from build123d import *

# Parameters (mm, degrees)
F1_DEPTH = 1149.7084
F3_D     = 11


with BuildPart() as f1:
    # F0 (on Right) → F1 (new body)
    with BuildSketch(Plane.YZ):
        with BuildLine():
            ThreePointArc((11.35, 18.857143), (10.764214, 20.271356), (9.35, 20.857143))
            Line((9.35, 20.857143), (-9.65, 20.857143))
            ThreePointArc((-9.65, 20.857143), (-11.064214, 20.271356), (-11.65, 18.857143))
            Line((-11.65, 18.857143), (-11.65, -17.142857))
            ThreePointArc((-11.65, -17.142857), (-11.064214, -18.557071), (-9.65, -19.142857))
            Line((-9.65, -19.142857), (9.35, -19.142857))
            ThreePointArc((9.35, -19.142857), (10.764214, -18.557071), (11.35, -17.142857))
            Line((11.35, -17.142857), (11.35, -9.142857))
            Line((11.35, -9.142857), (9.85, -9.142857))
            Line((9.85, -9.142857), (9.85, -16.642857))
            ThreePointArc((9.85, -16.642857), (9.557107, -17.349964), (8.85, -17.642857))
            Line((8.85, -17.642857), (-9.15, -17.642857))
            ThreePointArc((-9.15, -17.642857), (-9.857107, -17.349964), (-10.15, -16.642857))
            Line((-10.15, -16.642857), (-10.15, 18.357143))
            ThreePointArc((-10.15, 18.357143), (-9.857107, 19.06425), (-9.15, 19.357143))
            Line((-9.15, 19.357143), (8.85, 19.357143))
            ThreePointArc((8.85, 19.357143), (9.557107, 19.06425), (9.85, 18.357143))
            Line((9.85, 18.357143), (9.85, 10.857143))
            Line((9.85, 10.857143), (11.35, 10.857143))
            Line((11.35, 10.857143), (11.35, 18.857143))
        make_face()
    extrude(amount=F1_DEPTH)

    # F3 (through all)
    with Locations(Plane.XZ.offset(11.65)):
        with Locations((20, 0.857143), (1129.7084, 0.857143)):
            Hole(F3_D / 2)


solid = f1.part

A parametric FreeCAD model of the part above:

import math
import FreeCAD as App
import Part
import Sketcher
from FreeCAD import Vector

doc = App.newDocument("Part")
params = doc.addObject("Spreadsheet::Sheet", "Params")
for row, (alias, value) in enumerate([
    ("sketch1_radius", "2 mm"),
    ("sketch1_radius2", "0.999999 mm"),
    ("sketch1_width", "19 mm"),
    ("sketch1_width2", "18 mm"),
    ("sketch1_height", "36 mm"),
    ("pad1_length", "1149.7084 mm"),
    ("sketch2_diameter", "11 mm"),
    ("hole_diameter", "11 mm"),
], start=1):
    params.set(f"A{row}", alias)
    params.set(f"B{row}", "=" + value)
    params.setAlias(f"B{row}", alias)

body = doc.addObject("PartDesign::Body", "Body")

# Sketch on YZ plane
sketch1 = body.newObject("Sketcher::SketchObject", "Sketch")
sketch1.AttachmentSupport = (doc.getObject("YZ_Plane"), [""])
sketch1.MapMode = "FlatFace"
sketch1.addGeometry([
    Part.ArcOfCircle(Part.Circle(Vector(9.3, 18.9, 0), Vector(0, 0, 1), 2), math.radians(0), math.radians(90)),  # 0
    Part.LineSegment(Vector(9.3, 20.9, 0), Vector(-9.7, 20.9, 0)),  # 1
    Part.ArcOfCircle(Part.Circle(Vector(-9.6, 18.9, 0), Vector(0, 0, 1), 2), math.radians(90), math.radians(180)),  # 2
    Part.LineSegment(Vector(-11.7, 18.9, 0), Vector(-11.7, -17.1, 0)),  # 3
    Part.ArcOfCircle(Part.Circle(Vector(-9.7, -17.1, 0), Vector(0, 0, 1), 2), math.radians(180), math.radians(270)),  # 4
    Part.LineSegment(Vector(-9.7, -19.1, 0), Vector(9.3, -19.1, 0)),  # 5
    Part.ArcOfCircle(Part.Circle(Vector(9.4, -17.1, 0), Vector(0, 0, 1), 2), math.radians(-90), math.radians(0)),  # 6
    Part.LineSegment(Vector(11.3, -17.1, 0), Vector(11.3, -9.1, 0)),  # 7
    Part.LineSegment(Vector(11.3, -9.1, 0), Vector(9.8, -9.1, 0)),  # 8
    Part.LineSegment(Vector(9.8, -9.1, 0), Vector(9.8, -16.6, 0)),  # 9
    Part.ArcOfCircle(Part.Circle(Vector(8.9, -16.6, 0), Vector(0, 0, 1), 1), math.radians(-90), math.radians(0)),  # 10
    Part.LineSegment(Vector(8.8, -17.6, 0), Vector(-9.2, -17.6, 0)),  # 11
    Part.ArcOfCircle(Part.Circle(Vector(-9.2, -16.6, 0), Vector(0, 0, 1), 1), math.radians(180), math.radians(270)),  # 12
    Part.LineSegment(Vector(-10.2, -16.6, 0), Vector(-10.2, 18.4, 0)),  # 13
    Part.ArcOfCircle(Part.Circle(Vector(-9.2, 18.4, 0), Vector(0, 0, 1), 1), math.radians(90), math.radians(180)),  # 14
    Part.LineSegment(Vector(-9.2, 19.4, 0), Vector(8.8, 19.4, 0)),  # 15
    Part.ArcOfCircle(Part.Circle(Vector(8.9, 18.4, 0), Vector(0, 0, 1), 1), math.radians(0), math.radians(90)),  # 16
    Part.LineSegment(Vector(9.8, 18.4, 0), Vector(9.8, 10.9, 0)),  # 17
    Part.LineSegment(Vector(9.8, 10.9, 0), Vector(11.3, 10.9, 0)),  # 18
    Part.LineSegment(Vector(11.3, 10.9, 0), Vector(11.3, 18.9, 0)),  # 19
], False)
sketch1.addConstraint([
    Sketcher.Constraint("Tangent", 0, 2, 1, 1),
    Sketcher.Constraint("Tangent", 1, 2, 2, 1),
    Sketcher.Constraint("Tangent", 2, 2, 3, 1),
    Sketcher.Constraint("Tangent", 3, 2, 4, 1),
    Sketcher.Constraint("Tangent", 4, 2, 5, 1),
    Sketcher.Constraint("Tangent", 5, 2, 6, 1),
    Sketcher.Constraint("Tangent", 6, 2, 7, 1),
    Sketcher.Constraint("Coincident", 7, 2, 8, 1),
    Sketcher.Constraint("Coincident", 8, 2, 9, 1),
    Sketcher.Constraint("Tangent", 9, 2, 10, 2),
    Sketcher.Constraint("Tangent", 10, 1, 11, 1),
    Sketcher.Constraint("Tangent", 11, 2, 12, 2),
    Sketcher.Constraint("Tangent", 12, 1, 13, 1),
    Sketcher.Constraint("Tangent", 13, 2, 14, 2),
    Sketcher.Constraint("Tangent", 14, 1, 15, 1),
    Sketcher.Constraint("Tangent", 15, 2, 16, 2),
    Sketcher.Constraint("Tangent", 16, 1, 17, 1),
    Sketcher.Constraint("Coincident", 17, 2, 18, 1),
    Sketcher.Constraint("Coincident", 18, 2, 19, 1),
    Sketcher.Constraint("Tangent", 19, 2, 0, 1),
    Sketcher.Constraint("Horizontal", 1),
    Sketcher.Constraint("Vertical", 3),
    Sketcher.Constraint("Horizontal", 5),
    Sketcher.Constraint("Vertical", 7),
    Sketcher.Constraint("Horizontal", 8),
    Sketcher.Constraint("Vertical", 9),
    Sketcher.Constraint("Horizontal", 11),
    Sketcher.Constraint("Vertical", 13),
    Sketcher.Constraint("Horizontal", 15),
    Sketcher.Constraint("Vertical", 17),
    Sketcher.Constraint("Horizontal", 18),
    Sketcher.Constraint("Vertical", 19),
    Sketcher.Constraint("Equal", 0, 2),
    Sketcher.Constraint("Equal", 2, 4),
    Sketcher.Constraint("Equal", 4, 6),
    Sketcher.Constraint("Equal", 10, 12),
    Sketcher.Constraint("Equal", 12, 14),
    Sketcher.Constraint("Equal", 14, 16),
    Sketcher.Constraint("Vertical", 0, 3, 6, 3),
    Sketcher.Constraint("Vertical", 10, 3, 16, 3),
    Sketcher.Constraint("Equal", 9, 17),
    Sketcher.Constraint("Equal", 7, 19),
    Sketcher.Constraint("Radius", 0, 2.0),
    Sketcher.Constraint("Radius", 10, 0.999999),
    Sketcher.Constraint("DistanceX", 1, 2, 1, 1, 19.0),
    Sketcher.Constraint("DistanceX", 11, 2, 11, 1, 18.0),
    Sketcher.Constraint("DistanceY", 3, 2, 3, 1, 36.0),
    Sketcher.Constraint("DistanceY", 7, 1, 7, 2, 8.0),
    Sketcher.Constraint("DistanceY", 13, 1, 13, 2, 35.0),
    Sketcher.Constraint("DistanceX", 8, 2, 8, 1, 1.5),
    Sketcher.Constraint("DistanceX", -1, 1, 0, 3, 9.35),
    Sketcher.Constraint("DistanceY", 4, 3, -1, 1, 17.142858),
])
sketch1.setExpression("Constraints[42]", "Params.sketch1_radius")
sketch1.setExpression("Constraints[43]", "Params.sketch1_radius2")
sketch1.setExpression("Constraints[44]", "Params.sketch1_width")
sketch1.setExpression("Constraints[45]", "Params.sketch1_width2")
sketch1.setExpression("Constraints[46]", "Params.sketch1_height")
pad1 = body.newObject("PartDesign::Pad", "Pad")
pad1.Profile = sketch1
pad1.setExpression("Length", "Params.pad1_length")

# Sketch on XZ plane
sketch2 = body.newObject("Sketcher::SketchObject", "Sketch001")
sketch2.AttachmentSupport = (doc.getObject("XZ_Plane"), [""])
sketch2.MapMode = "FlatFace"
sketch2.AttachmentOffset = App.Placement(Vector(0, 0, 11.65), App.Rotation())
sketch2.addGeometry([
    Part.Circle(Vector(20, 1, 0), Vector(0, 0, 1), 6),
    Part.Circle(Vector(1130, 1, 0), Vector(0, 0, 1), 6),
], False)
sketch2.addConstraint([
    Sketcher.Constraint("Equal", 0, 1),
    Sketcher.Constraint("Horizontal", 0, 3, 1, 3),
    Sketcher.Constraint("Diameter", 0, 11.0),
    Sketcher.Constraint("DistanceX", -1, 1, 0, 3, 20.0),
    Sketcher.Constraint("DistanceX", -1, 1, 1, 3, 1129.7084),
    Sketcher.Constraint("DistanceY", -1, 1, 0, 3, 0.857143),
])
sketch2.setExpression("Constraints[2]", "Params.sketch2_diameter")
doc.recompute()
hole = body.newObject("PartDesign::Hole", "Hole")
hole.Profile = sketch2
hole.ThreadType = "None"
hole.setExpression("Diameter", "Params.hole_diameter")
hole.DepthType = "ThroughAll"

doc.recompute()
